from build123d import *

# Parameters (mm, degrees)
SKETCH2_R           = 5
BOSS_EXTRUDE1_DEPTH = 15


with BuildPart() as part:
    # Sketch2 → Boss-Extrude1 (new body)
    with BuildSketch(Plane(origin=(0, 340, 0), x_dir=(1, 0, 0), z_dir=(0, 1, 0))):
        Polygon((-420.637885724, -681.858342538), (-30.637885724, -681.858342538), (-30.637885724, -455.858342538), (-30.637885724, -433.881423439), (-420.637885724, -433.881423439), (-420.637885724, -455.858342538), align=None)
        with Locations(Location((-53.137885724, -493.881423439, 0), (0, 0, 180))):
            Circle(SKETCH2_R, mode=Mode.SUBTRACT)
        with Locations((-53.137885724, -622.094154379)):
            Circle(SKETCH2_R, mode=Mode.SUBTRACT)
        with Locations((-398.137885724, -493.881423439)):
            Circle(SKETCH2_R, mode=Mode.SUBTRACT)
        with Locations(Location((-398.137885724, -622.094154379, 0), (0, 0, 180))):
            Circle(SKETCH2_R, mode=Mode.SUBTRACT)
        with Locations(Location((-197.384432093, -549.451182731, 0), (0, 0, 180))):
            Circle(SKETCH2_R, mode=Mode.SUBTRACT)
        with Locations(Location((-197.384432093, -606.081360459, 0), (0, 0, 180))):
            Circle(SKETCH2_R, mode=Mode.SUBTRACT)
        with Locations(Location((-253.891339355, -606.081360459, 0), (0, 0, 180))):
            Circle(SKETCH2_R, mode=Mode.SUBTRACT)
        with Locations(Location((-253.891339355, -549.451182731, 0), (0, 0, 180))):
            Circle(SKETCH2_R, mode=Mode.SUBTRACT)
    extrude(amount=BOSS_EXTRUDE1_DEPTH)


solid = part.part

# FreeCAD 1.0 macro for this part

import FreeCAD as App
import Part
import Sketcher

V = App.Vector
Q = App.Units.Quantity


def add_polygon(sketch, points):
    """Adds a closed chain of lines whose ends are joined by coincident constraints."""
    first, n = sketch.GeometryCount, len(points)
    for a, b in zip(points, points[1:] + points[:1]):
        sketch.addGeometry(Part.LineSegment(App.Vector(*a, 0), App.Vector(*b, 0)), False)
    for i in range(n):
        sketch.addConstraint(Sketcher.Constraint("Coincident", first + i, 2, first + (i + 1) % n, 1))

doc = App.newDocument("Part")
body = doc.addObject("PartDesign::Body", "Body")

# Sketch on XZ plane
sketch1 = body.newObject("Sketcher::SketchObject", "Sketch")
sketch1.AttachmentSupport = (doc.getObject("XZ_Plane"), [""])
sketch1.MapMode = "FlatFace"
sketch1.AttachmentOffset = App.Placement(V(0, 0, -340), App.Rotation())
add_polygon(sketch1, [(-421, 682), (-31, 682), (-31, 434), (-421, 434)])  # lines 0-3
sketch1.addGeometry(Part.Circle(V(-398, 622, 0), V(0, 0, 1), 5), False)  # 4
sketch1.addGeometry(Part.Circle(V(-254, 606, 0), V(0, 0, 1), 5), False)  # 5
sketch1.addGeometry(Part.Circle(V(-197, 606, 0), V(0, 0, 1), 5), False)  # 6
sketch1.addGeometry(Part.Circle(V(-53, 622, 0), V(0, 0, 1), 5), False)  # 7
sketch1.addGeometry(Part.Circle(V(-254, 549, 0), V(0, 0, 1), 5), False)  # 8
sketch1.addGeometry(Part.Circle(V(-398, 494, 0), V(0, 0, 1), 5), False)  # 9
sketch1.addGeometry(Part.Circle(V(-197, 549, 0), V(0, 0, 1), 5), False)  # 10
sketch1.addGeometry(Part.Circle(V(-53, 494, 0), V(0, 0, 1), 5), False)  # 11
sketch1.addConstraint([
    Sketcher.Constraint("Horizontal", 0),
    Sketcher.Constraint("Vertical", 1),
    Sketcher.Constraint("Horizontal", 2),
    Sketcher.Constraint("Vertical", 3),
    Sketcher.Constraint("Equal", 4, 5),
    Sketcher.Constraint("Equal", 5, 6),
    Sketcher.Constraint("Equal", 6, 7),
    Sketcher.Constraint("Equal", 7, 8),
    Sketcher.Constraint("Equal", 8, 9),
    Sketcher.Constraint("Equal", 9, 10),
    Sketcher.Constraint("Equal", 10, 11),
    Sketcher.Constraint("Horizontal", 5, 3, 6, 3),
    Sketcher.Constraint("Horizontal", 4, 3, 7, 3),
    Sketcher.Constraint("Horizontal", 8, 3, 10, 3),
    Sketcher.Constraint("Horizontal", 9, 3, 11, 3),
    Sketcher.Constraint("Vertical", 5, 3, 8, 3),
    Sketcher.Constraint("Vertical", 4, 3, 9, 3),
    Sketcher.Constraint("Vertical", 6, 3, 10, 3),
    Sketcher.Constraint("Vertical", 7, 3, 11, 3),
    Sketcher.Constraint("Diameter", 4, Q("10 mm")),
    Sketcher.Constraint("DistanceX", 0, 1, 0, 2, Q("390 mm")),
    Sketcher.Constraint("DistanceX", 4, 3, 7, 3, Q("345 mm")),
    Sketcher.Constraint("DistanceY", 1, 2, 11, 3, Q("60 mm")),
    Sketcher.Constraint("DistanceX", 7, 3, 0, 2, Q("22.5 mm")),
    Sketcher.Constraint("DistanceY", 1, 2, 1, 1, Q("247.976919 mm")),
    Sketcher.Constraint("DistanceX", 5, 3, -1, 1, Q("253.891339 mm")),
    Sketcher.Constraint("DistanceY", -1, 1, 5, 3, Q("606.08136 mm")),
    Sketcher.Constraint("DistanceY", 8, 3, 4, 3, Q("72.642972 mm")),
    Sketcher.Constraint("DistanceY", 9, 3, 4, 3, Q("128.212731 mm")),
    Sketcher.Constraint("DistanceX", 4, 3, -1, 1, Q("398.137886 mm")),
    Sketcher.Constraint("DistanceY", -1, 1, 4, 3, Q("622.094154 mm")),
    Sketcher.Constraint("DistanceX", 6, 3, -1, 1, Q("197.384432 mm")),
])
pad1 = body.newObject("PartDesign::Pad", "Pad")
pad1.Profile = sketch1
pad1.Length = 15
pad1.Reversed = True

doc.recompute()
